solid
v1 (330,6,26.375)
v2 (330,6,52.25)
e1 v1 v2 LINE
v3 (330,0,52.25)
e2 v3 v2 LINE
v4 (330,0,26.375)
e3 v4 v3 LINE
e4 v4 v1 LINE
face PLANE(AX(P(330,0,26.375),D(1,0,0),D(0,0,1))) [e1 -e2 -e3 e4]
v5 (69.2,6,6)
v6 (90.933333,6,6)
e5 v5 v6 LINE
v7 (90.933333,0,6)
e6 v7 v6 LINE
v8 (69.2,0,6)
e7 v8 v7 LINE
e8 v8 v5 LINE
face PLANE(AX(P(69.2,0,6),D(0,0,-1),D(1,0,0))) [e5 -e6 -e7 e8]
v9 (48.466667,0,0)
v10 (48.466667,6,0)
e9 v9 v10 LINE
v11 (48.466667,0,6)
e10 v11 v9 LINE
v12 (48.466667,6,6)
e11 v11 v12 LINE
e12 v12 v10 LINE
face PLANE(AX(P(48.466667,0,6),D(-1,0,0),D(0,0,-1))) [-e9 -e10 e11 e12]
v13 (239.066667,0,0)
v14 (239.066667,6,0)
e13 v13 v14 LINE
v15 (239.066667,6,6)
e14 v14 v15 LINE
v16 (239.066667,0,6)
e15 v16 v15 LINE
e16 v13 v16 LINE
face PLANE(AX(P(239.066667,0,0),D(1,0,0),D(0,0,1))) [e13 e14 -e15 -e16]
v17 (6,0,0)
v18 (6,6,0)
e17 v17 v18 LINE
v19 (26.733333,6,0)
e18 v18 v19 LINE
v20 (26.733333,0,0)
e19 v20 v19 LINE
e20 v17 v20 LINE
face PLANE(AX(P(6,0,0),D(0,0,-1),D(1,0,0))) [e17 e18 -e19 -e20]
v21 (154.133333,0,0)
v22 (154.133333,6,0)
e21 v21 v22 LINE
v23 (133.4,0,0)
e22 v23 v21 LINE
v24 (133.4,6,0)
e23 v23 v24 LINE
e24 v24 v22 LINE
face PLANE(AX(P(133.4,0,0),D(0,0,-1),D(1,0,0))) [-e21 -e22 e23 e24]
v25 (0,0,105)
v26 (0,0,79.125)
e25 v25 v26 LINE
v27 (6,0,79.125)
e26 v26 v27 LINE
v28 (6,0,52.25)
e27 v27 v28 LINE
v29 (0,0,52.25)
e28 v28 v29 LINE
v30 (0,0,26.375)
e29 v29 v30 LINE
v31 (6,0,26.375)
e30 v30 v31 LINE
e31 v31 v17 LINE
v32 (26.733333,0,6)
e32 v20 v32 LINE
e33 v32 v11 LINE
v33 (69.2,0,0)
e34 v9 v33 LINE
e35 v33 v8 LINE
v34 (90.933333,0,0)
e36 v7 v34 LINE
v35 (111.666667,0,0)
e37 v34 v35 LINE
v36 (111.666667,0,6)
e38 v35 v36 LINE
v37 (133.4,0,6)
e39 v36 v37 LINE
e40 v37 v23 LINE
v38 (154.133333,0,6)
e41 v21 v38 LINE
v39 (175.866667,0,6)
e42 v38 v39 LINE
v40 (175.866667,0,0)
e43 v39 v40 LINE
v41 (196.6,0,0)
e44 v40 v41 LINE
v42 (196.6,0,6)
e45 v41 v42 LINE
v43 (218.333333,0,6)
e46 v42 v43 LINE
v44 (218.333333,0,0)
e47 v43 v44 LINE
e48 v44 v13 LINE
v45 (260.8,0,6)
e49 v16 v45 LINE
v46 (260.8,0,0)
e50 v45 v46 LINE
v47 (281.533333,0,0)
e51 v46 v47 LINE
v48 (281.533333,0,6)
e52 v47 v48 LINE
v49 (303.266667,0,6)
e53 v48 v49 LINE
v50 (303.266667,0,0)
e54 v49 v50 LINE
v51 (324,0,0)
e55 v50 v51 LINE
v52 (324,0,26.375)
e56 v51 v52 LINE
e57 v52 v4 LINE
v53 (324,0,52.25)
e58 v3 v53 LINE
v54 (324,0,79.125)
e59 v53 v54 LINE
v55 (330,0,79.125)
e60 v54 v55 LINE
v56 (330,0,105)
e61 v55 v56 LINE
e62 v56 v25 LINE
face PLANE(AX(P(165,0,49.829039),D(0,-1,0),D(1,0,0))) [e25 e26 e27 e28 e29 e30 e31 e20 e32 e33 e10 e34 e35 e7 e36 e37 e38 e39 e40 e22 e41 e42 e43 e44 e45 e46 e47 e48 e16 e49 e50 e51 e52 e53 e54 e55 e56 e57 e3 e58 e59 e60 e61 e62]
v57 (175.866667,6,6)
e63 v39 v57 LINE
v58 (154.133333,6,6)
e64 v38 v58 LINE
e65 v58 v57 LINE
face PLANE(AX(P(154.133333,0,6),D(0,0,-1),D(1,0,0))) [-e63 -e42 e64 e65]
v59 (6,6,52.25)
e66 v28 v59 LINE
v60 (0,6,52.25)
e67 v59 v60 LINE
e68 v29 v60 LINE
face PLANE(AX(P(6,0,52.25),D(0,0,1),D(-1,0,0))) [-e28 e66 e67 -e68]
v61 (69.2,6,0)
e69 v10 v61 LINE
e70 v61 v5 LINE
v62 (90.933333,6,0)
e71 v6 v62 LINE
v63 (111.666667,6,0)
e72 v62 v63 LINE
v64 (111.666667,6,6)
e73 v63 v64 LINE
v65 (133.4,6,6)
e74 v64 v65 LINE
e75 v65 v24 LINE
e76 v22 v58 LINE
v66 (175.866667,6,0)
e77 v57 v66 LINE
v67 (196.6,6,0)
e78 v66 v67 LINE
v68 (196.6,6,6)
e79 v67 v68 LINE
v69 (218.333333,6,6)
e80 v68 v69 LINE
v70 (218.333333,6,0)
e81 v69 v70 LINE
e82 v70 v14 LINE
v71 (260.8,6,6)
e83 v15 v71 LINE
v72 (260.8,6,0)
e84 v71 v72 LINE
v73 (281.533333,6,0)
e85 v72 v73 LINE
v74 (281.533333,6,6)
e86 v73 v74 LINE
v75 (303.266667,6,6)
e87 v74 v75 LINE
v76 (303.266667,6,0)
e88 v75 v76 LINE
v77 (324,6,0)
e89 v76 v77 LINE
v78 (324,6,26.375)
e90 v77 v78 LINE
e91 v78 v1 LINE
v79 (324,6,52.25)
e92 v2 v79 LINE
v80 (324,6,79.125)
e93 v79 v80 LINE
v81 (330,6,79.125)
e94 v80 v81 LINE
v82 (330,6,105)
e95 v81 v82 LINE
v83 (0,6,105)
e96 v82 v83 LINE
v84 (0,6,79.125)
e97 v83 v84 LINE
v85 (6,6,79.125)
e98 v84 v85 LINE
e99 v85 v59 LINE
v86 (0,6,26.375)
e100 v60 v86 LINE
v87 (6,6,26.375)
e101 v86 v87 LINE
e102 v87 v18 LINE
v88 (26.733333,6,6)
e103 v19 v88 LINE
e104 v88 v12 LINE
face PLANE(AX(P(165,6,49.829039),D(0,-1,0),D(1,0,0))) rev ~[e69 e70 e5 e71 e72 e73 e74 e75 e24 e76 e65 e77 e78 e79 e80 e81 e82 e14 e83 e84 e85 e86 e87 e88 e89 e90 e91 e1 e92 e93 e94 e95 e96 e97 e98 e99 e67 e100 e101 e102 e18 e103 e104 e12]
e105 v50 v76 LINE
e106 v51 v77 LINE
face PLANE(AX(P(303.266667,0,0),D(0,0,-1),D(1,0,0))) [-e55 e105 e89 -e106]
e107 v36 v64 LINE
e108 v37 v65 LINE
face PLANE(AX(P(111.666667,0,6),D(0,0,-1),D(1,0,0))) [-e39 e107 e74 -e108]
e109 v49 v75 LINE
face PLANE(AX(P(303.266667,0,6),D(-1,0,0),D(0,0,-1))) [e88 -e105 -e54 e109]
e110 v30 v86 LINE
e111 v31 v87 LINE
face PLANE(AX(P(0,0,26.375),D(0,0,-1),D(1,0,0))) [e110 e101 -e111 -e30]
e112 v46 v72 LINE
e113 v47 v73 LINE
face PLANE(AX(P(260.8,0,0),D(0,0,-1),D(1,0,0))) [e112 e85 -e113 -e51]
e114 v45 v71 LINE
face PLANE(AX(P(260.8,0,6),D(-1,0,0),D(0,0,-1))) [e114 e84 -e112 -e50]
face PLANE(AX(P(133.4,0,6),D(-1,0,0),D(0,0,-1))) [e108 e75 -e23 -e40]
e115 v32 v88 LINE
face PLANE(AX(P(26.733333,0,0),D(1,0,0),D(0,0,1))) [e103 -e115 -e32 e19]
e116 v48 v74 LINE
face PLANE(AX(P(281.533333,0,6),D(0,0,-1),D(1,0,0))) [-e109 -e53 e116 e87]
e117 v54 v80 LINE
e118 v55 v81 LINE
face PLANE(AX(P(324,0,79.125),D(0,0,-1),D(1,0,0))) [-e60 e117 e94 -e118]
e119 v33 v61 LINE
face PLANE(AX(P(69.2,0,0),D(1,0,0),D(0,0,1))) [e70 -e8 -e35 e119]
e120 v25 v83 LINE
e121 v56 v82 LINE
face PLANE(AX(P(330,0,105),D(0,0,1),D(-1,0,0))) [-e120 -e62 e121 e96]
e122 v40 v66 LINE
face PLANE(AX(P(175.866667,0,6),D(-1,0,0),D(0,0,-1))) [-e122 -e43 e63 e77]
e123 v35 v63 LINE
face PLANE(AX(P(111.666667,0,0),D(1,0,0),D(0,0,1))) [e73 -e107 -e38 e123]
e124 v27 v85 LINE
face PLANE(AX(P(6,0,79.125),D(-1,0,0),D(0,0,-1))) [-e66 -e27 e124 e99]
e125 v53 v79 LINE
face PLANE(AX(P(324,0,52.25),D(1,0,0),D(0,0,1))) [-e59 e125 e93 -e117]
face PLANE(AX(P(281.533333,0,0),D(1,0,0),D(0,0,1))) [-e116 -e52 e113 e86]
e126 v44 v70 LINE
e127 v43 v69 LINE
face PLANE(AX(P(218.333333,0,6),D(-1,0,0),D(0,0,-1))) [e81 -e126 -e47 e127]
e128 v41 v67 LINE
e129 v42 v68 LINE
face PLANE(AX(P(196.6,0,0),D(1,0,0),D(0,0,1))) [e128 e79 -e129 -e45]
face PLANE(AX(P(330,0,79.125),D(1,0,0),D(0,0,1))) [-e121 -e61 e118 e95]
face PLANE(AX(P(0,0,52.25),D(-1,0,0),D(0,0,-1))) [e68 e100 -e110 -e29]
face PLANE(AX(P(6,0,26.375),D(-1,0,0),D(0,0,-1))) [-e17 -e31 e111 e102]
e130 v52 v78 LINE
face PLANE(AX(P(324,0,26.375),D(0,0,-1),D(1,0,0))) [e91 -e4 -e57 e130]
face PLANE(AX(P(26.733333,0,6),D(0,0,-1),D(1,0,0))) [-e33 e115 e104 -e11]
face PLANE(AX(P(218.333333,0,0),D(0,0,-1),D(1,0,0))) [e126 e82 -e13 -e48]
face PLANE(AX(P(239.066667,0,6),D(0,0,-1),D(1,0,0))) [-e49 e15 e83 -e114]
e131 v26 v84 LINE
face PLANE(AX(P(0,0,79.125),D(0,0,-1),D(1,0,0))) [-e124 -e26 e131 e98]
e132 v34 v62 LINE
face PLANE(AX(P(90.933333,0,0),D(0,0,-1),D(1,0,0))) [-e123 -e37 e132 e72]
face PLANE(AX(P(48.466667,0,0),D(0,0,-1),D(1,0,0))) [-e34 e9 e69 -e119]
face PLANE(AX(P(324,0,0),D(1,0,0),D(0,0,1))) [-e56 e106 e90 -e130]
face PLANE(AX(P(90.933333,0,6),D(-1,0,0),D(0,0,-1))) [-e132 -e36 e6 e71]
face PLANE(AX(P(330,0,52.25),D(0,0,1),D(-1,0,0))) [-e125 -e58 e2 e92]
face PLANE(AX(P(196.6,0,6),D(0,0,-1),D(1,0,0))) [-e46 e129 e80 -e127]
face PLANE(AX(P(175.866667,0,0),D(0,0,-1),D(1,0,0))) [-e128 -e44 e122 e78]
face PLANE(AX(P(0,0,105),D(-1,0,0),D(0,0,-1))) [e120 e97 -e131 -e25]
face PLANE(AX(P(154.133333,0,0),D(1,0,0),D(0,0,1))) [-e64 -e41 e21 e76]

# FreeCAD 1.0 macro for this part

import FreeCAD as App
import Part
import Sketcher

V = App.Vector


def add_polygon(sketch, points):
    """Adds a closed chain of lines whose ends are joined by coincident constraints."""
    first, n = sketch.GeometryCount, len(points)
    for a, b in zip(points, points[1:] + points[:1]):
        sketch.addGeometry(Part.LineSegment(App.Vector(*a, 0), App.Vector(*b, 0)), False)
    for i in range(n):
        sketch.addConstraint(Sketcher.Constraint("Coincident", first + i, 2, first + (i + 1) % n, 1))

doc = App.newDocument("Part")
body = doc.addObject("PartDesign::Body", "Body")

# Sketch on XZ plane
sketch1 = body.newObject("Sketcher::SketchObject", "Sketch")
sketch1.AttachmentSupport = (doc.getObject("XZ_Plane"), [""])
sketch1.MapMode = "FlatFace"
add_polygon(sketch1, [(48, 6), (48, 0), (69, 0), (69, 6), (91, 6), (91, 0), (112, 0), (112, 6), (133, 6), (133, 0), (154, 0), (154, 6), (176, 6), (176, 0), (197, 0), (197, 6), (218, 6), (218, 0), (239, 0), (239, 6), (261, 6), (261, 0), (282, 0), (282, 6), (303, 6), (303, 0), (324, 0), (324, 26), (330, 26), (330, 52), (324, 52), (324, 79), (330, 79), (330, 105), (0, 105), (0, 79), (6, 79), (6, 52), (0, 52), (0, 26), (6, 26), (6, 0), (27, 0), (27, 6)])  # lines 0-43
sketch1.addConstraint(Sketcher.Constraint("Vertical", 0))
sketch1.addConstraint(Sketcher.Constraint("Horizontal", 1))
sketch1.addConstraint(Sketcher.Constraint("Vertical", 2))
sketch1.addConstraint(Sketcher.Constraint("Horizontal", 3))
sketch1.addConstraint(Sketcher.Constraint("Vertical", 4))
sketch1.addConstraint(Sketcher.Constraint("Horizontal", 5))
sketch1.addConstraint(Sketcher.Constraint("Vertical", 6))
sketch1.addConstraint(Sketcher.Constraint("Horizontal", 7))
sketch1.addConstraint(Sketcher.Constraint("Vertical", 8))
sketch1.addConstraint(Sketcher.Constraint("Horizontal", 9))
sketch1.addConstraint(Sketcher.Constraint("Vertical", 10))
sketch1.addConstraint(Sketcher.Constraint("Horizontal", 11))
sketch1.addConstraint(Sketcher.Constraint("Vertical", 12))
sketch1.addConstraint(Sketcher.Constraint("Horizontal", 13))
sketch1.addConstraint(Sketcher.Constraint("Vertical", 14))
sketch1.addConstraint(Sketcher.Constraint("Horizontal", 15))
sketch1.addConstraint(Sketcher.Constraint("Vertical", 16))
sketch1.addConstraint(Sketcher.Constraint("Horizontal", 17))
sketch1.addConstraint(Sketcher.Constraint("Vertical", 18))
sketch1.addConstraint(Sketcher.Constraint("Horizontal", 19))
sketch1.addConstraint(Sketcher.Constraint("Vertical", 20))
sketch1.addConstraint(Sketcher.Constraint("Horizontal", 21))
sketch1.addConstraint(Sketcher.Constraint("Vertical", 22))
sketch1.addConstraint(Sketcher.Constraint("Horizontal", 23))
sketch1.addConstraint(Sketcher.Constraint("Vertical", 24))
sketch1.addConstraint(Sketcher.Constraint("Horizontal", 25))
sketch1.addConstraint(Sketcher.Constraint("Vertical", 26))
sketch1.addConstraint(Sketcher.Constraint("Horizontal", 27))
sketch1.addConstraint(Sketcher.Constraint("Vertical", 28))
sketch1.addConstraint(Sketcher.Constraint("Horizontal", 29))
sketch1.addConstraint(Sketcher.Constraint("Vertical", 30))
sketch1.addConstraint(Sketcher.Constraint("Horizontal", 31))
sketch1.addConstraint(Sketcher.Constraint("Vertical", 32))
sketch1.addConstraint(Sketcher.Constraint("Horizontal", 33))
sketch1.addConstraint(Sketcher.Constraint("Vertical", 34))
sketch1.addConstraint(Sketcher.Constraint("Horizontal", 35))
sketch1.addConstraint(Sketcher.Constraint("Vertical", 36))
sketch1.addConstraint(Sketcher.Constraint("Horizontal", 37))
sketch1.addConstraint(Sketcher.Constraint("Vertical", 38))
sketch1.addConstraint(Sketcher.Constraint("Horizontal", 39))
sketch1.addConstraint(Sketcher.Constraint("Vertical", 40))
sketch1.addConstraint(Sketcher.Constraint("Horizontal", 41))
sketch1.addConstraint(Sketcher.Constraint("Vertical", 42))
sketch1.addConstraint(Sketcher.Constraint("Horizontal", 43))
sketch1.addConstraint(Sketcher.Constraint("PointOnObject", 0, 2, -1))
sketch1.addConstraint(Sketcher.Constraint("PointOnObject", 4, 2, -1))
sketch1.addConstraint(Sketcher.Constraint("PointOnObject", 8, 2, -1))
sketch1.addConstraint(Sketcher.Constraint("PointOnObject", 12, 2, -1))
sketch1.addConstraint(Sketcher.Constraint("PointOnObject", 16, 2, -1))
sketch1.addConstraint(Sketcher.Constraint("PointOnObject", 20, 2, -1))
sketch1.addConstraint(Sketcher.Constraint("PointOnObject", 24, 2, -1))
sketch1.addConstraint(Sketcher.Constraint("PointOnObject", 33, 2, -2))
sketch1.addConstraint(Sketcher.Constraint("PointOnObject", 37, 2, -2))
sketch1.addConstraint(Sketcher.Constraint("PointOnObject", 40, 2, -1))
sketch1.addConstraint(Sketcher.Constraint("Horizontal", 3, 2, 6, 2))
sketch1.addConstraint(Sketcher.Constraint("Horizontal", 7, 2, 10, 2))
sketch1.addConstraint(Sketcher.Constraint("Horizontal", 11, 2, 14, 2))
sketch1.addConstraint(Sketcher.Constraint("Horizontal", 15, 2, 18, 2))
sketch1.addConstraint(Sketcher.Constraint("Horizontal", 19, 2, 22, 2))
sketch1.addConstraint(Sketcher.Constraint("Horizontal", 31, 2, 34, 2))
sketch1.addConstraint(Sketcher.Constraint("Horizontal", 29, 2, 36, 2))
sketch1.addConstraint(Sketcher.Constraint("Horizontal", 27, 2, 38, 2))
sketch1.addConstraint(Sketcher.Constraint("Horizontal", 23, 2, 42, 2))
sketch1.addConstraint(Sketcher.Constraint("Vertical", 26, 2, 29, 2))
sketch1.addConstraint(Sketcher.Constraint("Vertical", 28, 2, 31, 2))
sketch1.addConstraint(Sketcher.Constraint("Vertical", 36, 2, 39, 2))
sketch1.addConstraint(Sketcher.Constraint("Equal", 1, 5))
sketch1.addConstraint(Sketcher.Constraint("Equal", 3, 7))
sketch1.addConstraint(Sketcher.Constraint("Equal", 5, 9))
sketch1.addConstraint(Sketcher.Constraint("Equal", 7, 11))
sketch1.addConstraint(Sketcher.Constraint("Equal", 9, 13))
sketch1.addConstraint(Sketcher.Constraint("Equal", 11, 15))
sketch1.addConstraint(Sketcher.Constraint("Equal", 13, 17))
sketch1.addConstraint(Sketcher.Constraint("Equal", 15, 19))
sketch1.addConstraint(Sketcher.Constraint("Equal", 17, 21))
sketch1.addConstraint(Sketcher.Constraint("Equal", 19, 23))
sketch1.addConstraint(Sketcher.Constraint("Equal", 21, 25))
sketch1.addConstraint(Sketcher.Constraint("Equal", 31, 35))
sketch1.addConstraint(Sketcher.Constraint("Equal", 25, 41))
sketch1.addConstraint(Sketcher.Constraint("Equal", 23, 43))
sketch1.addConstraint(Sketcher.Constraint("Equal", 39, 0))
sketch1.addConstraint(Sketcher.Constraint("Equal", 28, 32))
sketch1.addConstraint(Sketcher.Constraint("DistanceX", 27, 1, 27, 2, 6.0))
sketch1.addConstraint(Sketcher.Constraint("DistanceX", 33, 2, 33, 1, 330.0))
sketch1.addConstraint(Sketcher.Constraint("DistanceY", -1, 1, 32, 2, 105.0))
sketch1.addConstraint(Sketcher.Constraint("DistanceX", -1, 1, 1, 2, 69.2))
sketch1.addConstraint(Sketcher.Constraint("DistanceY", 26, 1, 26, 2, 26.375))
sketch1.addConstraint(Sketcher.Constraint("DistanceY", 28, 1, 28, 2, 25.875))
pad1 = body.newObject("PartDesign::Pad", "Pad")
pad1.Profile = sketch1
pad1.Length = 6
pad1.Reversed = True

doc.recompute()
